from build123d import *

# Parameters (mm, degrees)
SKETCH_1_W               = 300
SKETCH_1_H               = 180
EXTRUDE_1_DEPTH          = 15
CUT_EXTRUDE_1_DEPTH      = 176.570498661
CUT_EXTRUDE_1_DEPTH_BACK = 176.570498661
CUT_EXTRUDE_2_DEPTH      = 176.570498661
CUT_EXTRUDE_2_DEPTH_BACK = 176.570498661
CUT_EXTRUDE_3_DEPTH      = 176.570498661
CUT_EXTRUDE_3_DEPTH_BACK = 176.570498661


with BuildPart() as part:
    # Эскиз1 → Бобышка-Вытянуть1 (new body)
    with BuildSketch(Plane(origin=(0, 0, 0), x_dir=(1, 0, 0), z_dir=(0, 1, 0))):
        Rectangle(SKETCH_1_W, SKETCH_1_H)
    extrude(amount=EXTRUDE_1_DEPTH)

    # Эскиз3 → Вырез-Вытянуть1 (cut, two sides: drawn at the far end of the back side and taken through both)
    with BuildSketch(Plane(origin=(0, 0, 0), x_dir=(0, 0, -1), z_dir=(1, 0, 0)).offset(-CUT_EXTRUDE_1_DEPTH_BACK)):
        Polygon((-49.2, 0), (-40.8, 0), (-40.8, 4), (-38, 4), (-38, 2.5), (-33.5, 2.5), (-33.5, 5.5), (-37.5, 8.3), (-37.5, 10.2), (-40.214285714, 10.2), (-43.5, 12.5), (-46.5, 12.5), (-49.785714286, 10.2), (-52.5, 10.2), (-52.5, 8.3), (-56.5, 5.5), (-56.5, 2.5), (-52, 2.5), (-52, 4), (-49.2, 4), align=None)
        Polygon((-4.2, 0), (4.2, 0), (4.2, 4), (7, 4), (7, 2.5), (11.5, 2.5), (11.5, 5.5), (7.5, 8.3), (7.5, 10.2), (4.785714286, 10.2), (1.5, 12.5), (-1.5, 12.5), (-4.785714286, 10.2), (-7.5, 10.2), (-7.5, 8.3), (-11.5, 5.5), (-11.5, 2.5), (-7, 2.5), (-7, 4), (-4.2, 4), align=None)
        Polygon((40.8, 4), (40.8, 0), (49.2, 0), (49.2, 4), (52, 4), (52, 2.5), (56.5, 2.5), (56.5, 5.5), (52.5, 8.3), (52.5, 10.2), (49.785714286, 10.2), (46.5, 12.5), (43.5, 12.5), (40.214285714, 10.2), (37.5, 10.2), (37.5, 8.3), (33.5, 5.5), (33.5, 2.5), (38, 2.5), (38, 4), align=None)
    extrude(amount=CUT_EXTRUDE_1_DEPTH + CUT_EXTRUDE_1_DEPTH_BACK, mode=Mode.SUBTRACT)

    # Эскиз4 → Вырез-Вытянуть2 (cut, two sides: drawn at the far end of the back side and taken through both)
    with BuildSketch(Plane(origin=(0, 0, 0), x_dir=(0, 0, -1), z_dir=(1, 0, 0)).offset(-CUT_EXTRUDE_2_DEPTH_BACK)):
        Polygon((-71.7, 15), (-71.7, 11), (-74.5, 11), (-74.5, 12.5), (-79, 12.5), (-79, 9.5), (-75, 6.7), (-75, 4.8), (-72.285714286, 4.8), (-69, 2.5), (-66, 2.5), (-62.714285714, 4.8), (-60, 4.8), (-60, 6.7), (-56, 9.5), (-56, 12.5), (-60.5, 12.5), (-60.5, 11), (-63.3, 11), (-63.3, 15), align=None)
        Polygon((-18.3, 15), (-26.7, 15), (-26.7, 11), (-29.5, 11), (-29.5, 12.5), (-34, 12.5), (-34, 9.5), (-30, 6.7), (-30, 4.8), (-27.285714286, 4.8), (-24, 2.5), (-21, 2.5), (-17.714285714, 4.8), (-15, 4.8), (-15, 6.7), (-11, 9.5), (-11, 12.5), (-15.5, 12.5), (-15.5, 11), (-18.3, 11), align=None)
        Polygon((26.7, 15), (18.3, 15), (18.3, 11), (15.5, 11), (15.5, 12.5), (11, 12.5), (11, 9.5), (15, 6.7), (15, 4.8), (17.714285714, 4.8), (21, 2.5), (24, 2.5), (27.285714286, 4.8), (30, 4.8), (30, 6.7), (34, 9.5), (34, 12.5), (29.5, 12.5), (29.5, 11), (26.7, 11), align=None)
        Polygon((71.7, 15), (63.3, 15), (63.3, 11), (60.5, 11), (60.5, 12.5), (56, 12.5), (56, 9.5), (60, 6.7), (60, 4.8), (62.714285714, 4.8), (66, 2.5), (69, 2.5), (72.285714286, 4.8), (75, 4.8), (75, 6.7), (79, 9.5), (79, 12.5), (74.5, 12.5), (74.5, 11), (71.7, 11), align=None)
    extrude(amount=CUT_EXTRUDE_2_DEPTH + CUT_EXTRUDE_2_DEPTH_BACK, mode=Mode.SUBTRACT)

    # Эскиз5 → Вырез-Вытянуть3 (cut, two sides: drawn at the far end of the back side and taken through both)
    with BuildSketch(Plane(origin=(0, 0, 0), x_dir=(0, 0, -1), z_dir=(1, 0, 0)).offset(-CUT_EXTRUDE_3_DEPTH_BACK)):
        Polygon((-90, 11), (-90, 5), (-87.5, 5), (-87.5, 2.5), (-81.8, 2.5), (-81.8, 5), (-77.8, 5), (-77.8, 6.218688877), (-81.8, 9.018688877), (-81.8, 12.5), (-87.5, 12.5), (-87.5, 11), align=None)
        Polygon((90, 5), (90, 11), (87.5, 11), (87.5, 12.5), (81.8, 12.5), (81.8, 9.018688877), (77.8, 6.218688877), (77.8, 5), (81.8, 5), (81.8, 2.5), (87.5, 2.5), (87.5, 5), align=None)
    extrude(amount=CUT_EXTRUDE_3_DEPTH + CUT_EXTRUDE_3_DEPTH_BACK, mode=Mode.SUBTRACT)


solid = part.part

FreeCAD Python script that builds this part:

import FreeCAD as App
import Part
import Sketcher

V = App.Vector
Q = App.Units.Quantity

doc = App.newDocument("Part")
body = doc.addObject("PartDesign::Body", "Body")

# Sketch on XZ plane
sketch1 = body.newObject("Sketcher::SketchObject", "Sketch")
sketch1.AttachmentSupport = (doc.getObject("XZ_Plane"), [""])
sketch1.MapMode = "FlatFace"
sketch1.addGeometry([
    Part.LineSegment(V(-150, -90, 0), V(-150, 90, 0)),
    Part.LineSegment(V(-150, 90, 0), V(150, 90, 0)),
    Part.LineSegment(V(150, 90, 0), V(150, -90, 0)),
    Part.LineSegment(V(150, -90, 0), V(-150, -90, 0)),
], False)
sketch1.addConstraint([
    Sketcher.Constraint("Coincident", 0, 2, 1, 1),
    Sketcher.Constraint("Coincident", 1, 2, 2, 1),
    Sketcher.Constraint("Coincident", 2, 2, 3, 1),
    Sketcher.Constraint("Coincident", 3, 2, 0, 1),
    Sketcher.Constraint("Vertical", 0),
    Sketcher.Constraint("Horizontal", 1),
    Sketcher.Constraint("Vertical", 2),
    Sketcher.Constraint("Horizontal", 3),
    Sketcher.Constraint("Symmetric", 0, 2, 2, 2, -1, 1),
    Sketcher.Constraint("DistanceX", 1, 1, 1, 2, Q("300 mm")),
    Sketcher.Constraint("DistanceY", 0, 1, 0, 2, Q("180 mm")),
])
pad1 = body.newObject("PartDesign::Pad", "Pad")
pad1.Profile = sketch1
pad1.Length = 15
pad1.Reversed = True

# Sketch on YZ plane
sketch2 = body.newObject("Sketcher::SketchObject", "Sketch001")
sketch2.AttachmentSupport = (doc.getObject("YZ_Plane"), [""])
sketch2.MapMode = "FlatFace"
sketch2.addGeometry([
    Part.LineSegment(V(0, 49.2, 0), V(0, 40.8, 0)),  # 0
    Part.LineSegment(V(0, 40.8, 0), V(4, 40.8, 0)),  # 1
    Part.LineSegment(V(4, 40.8, 0), V(4, 38, 0)),  # 2
    Part.LineSegment(V(4, 38, 0), V(2.5, 38, 0)),  # 3
    Part.LineSegment(V(2.5, 38, 0), V(2.5, 33.5, 0)),  # 4
    Part.LineSegment(V(2.5, 33.5, 0), V(5.5, 33.5, 0)),  # 5
    Part.LineSegment(V(5.5, 33.5, 0), V(8.3, 37.5, 0)),  # 6
    Part.LineSegment(V(8.3, 37.5, 0), V(10.2, 37.5, 0)),  # 7
    Part.LineSegment(V(10.2, 37.5, 0), V(10.2, 40.2, 0)),  # 8
    Part.LineSegment(V(10.2, 40.2, 0), V(12.5, 43.5, 0)),  # 9
    Part.LineSegment(V(12.5, 43.5, 0), V(12.5, 46.5, 0)),  # 10
    Part.LineSegment(V(12.5, 46.5, 0), V(10.2, 49.8, 0)),  # 11
    Part.LineSegment(V(10.2, 49.8, 0), V(10.2, 52.5, 0)),  # 12
    Part.LineSegment(V(10.2, 52.5, 0), V(8.3, 52.5, 0)),  # 13
    Part.LineSegment(V(8.3, 52.5, 0), V(5.5, 56.5, 0)),  # 14
    Part.LineSegment(V(5.5, 56.5, 0), V(2.5, 56.5, 0)),  # 15
    Part.LineSegment(V(2.5, 56.5, 0), V(2.5, 52, 0)),  # 16
    Part.LineSegment(V(2.5, 52, 0), V(4, 52, 0)),  # 17
    Part.LineSegment(V(4, 52, 0), V(4, 49.2, 0)),  # 18
    Part.LineSegment(V(4, 49.2, 0), V(0, 49.2, 0)),  # 19
    Part.LineSegment(V(0, 4.2, 0), V(0, -4.2, 0)),  # 20
    Part.LineSegment(V(0, -4.2, 0), V(4, -4.2, 0)),  # 21
    Part.LineSegment(V(4, -4.2, 0), V(4, -7, 0)),  # 22
    Part.LineSegment(V(4, -7, 0), V(2.5, -7, 0)),  # 23
    Part.LineSegment(V(2.5, -7, 0), V(2.5, -11.5, 0)),  # 24
    Part.LineSegment(V(2.5, -11.5, 0), V(5.5, -11.5, 0)),  # 25
    Part.LineSegment(V(5.5, -11.5, 0), V(8.3, -7.5, 0)),  # 26
    Part.LineSegment(V(8.3, -7.5, 0), V(10.2, -7.5, 0)),  # 27
    Part.LineSegment(V(10.2, -7.5, 0), V(10.2, -4.8, 0)),  # 28
    Part.LineSegment(V(10.2, -4.8, 0), V(12.5, -1.5, 0)),  # 29
    Part.LineSegment(V(12.5, -1.5, 0), V(12.5, 1.5, 0)),  # 30
    Part.LineSegment(V(12.5, 1.5, 0), V(10.2, 4.8, 0)),  # 31
    Part.LineSegment(V(10.2, 4.8, 0), V(10.2, 7.5, 0)),  # 32
    Part.LineSegment(V(10.2, 7.5, 0), V(8.3, 7.5, 0)),  # 33
    Part.LineSegment(V(8.3, 7.5, 0), V(5.5, 11.5, 0)),  # 34
    Part.LineSegment(V(5.5, 11.5, 0), V(2.5, 11.5, 0)),  # 35
    Part.LineSegment(V(2.5, 11.5, 0), V(2.5, 7, 0)),  # 36
    Part.LineSegment(V(2.5, 7, 0), V(4, 7, 0)),  # 37
    Part.LineSegment(V(4, 7, 0), V(4, 4.2, 0)),  # 38
    Part.LineSegment(V(4, 4.2, 0), V(0, 4.2, 0)),  # 39
    Part.LineSegment(V(4, -40.8, 0), V(0, -40.8, 0)),  # 40
    Part.LineSegment(V(0, -40.8, 0), V(0, -49.2, 0)),  # 41
    Part.LineSegment(V(0, -49.2, 0), V(4, -49.2, 0)),  # 42
    Part.LineSegment(V(4, -49.2, 0), V(4, -52, 0)),  # 43
    Part.LineSegment(V(4, -52, 0), V(2.5, -52, 0)),  # 44
    Part.LineSegment(V(2.5, -52, 0), V(2.5, -56.5, 0)),  # 45
    Part.LineSegment(V(2.5, -56.5, 0), V(5.5, -56.5, 0)),  # 46
    Part.LineSegment(V(5.5, -56.5, 0), V(8.3, -52.5, 0)),  # 47
    Part.LineSegment(V(8.3, -52.5, 0), V(10.2, -52.5, 0)),  # 48
    Part.LineSegment(V(10.2, -52.5, 0), V(10.2, -49.8, 0)),  # 49
    Part.LineSegment(V(10.2, -49.8, 0), V(12.5, -46.5, 0)),  # 50
    Part.LineSegment(V(12.5, -46.5, 0), V(12.5, -43.5, 0)),  # 51
    Part.LineSegment(V(12.5, -43.5, 0), V(10.2, -40.2, 0)),  # 52
    Part.LineSegment(V(10.2, -40.2, 0), V(10.2, -37.5, 0)),  # 53
    Part.LineSegment(V(10.2, -37.5, 0), V(8.3, -37.5, 0)),  # 54
    Part.LineSegment(V(8.3, -37.5, 0), V(5.5, -33.5, 0)),  # 55
    Part.LineSegment(V(5.5, -33.5, 0), V(2.5, -33.5, 0)),  # 56
    Part.LineSegment(V(2.5, -33.5, 0), V(2.5, -38, 0)),  # 57
    Part.LineSegment(V(2.5, -38, 0), V(4, -38, 0)),  # 58
    Part.LineSegment(V(4, -38, 0), V(4, -40.8, 0)),  # 59
], False)
sketch2.addConstraint([
    Sketcher.Constraint("Coincident", 0, 2, 1, 1),
    Sketcher.Constraint("Coincident", 1, 2, 2, 1),
    Sketcher.Constraint("Coincident", 2, 2, 3, 1),
    Sketcher.Constraint("Coincident", 3, 2, 4, 1),
    Sketcher.Constraint("Coincident", 4, 2, 5, 1),
    Sketcher.Constraint("Coincident", 5, 2, 6, 1),
    Sketcher.Constraint("Coincident", 6, 2, 7, 1),
    Sketcher.Constraint("Coincident", 7, 2, 8, 1),
    Sketcher.Constraint("Coincident", 8, 2, 9, 1),
    Sketcher.Constraint("Coincident", 9, 2, 10, 1),
    Sketcher.Constraint("Coincident", 10, 2, 11, 1),
    Sketcher.Constraint("Coincident", 11, 2, 12, 1),
    Sketcher.Constraint("Coincident", 12, 2, 13, 1),
    Sketcher.Constraint("Coincident", 13, 2, 14, 1),
    Sketcher.Constraint("Coincident", 14, 2, 15, 1),
    Sketcher.Constraint("Coincident", 15, 2, 16, 1),
    Sketcher.Constraint("Coincident", 16, 2, 17, 1),
    Sketcher.Constraint("Coincident", 17, 2, 18, 1),
    Sketcher.Constraint("Coincident", 18, 2, 19, 1),
    Sketcher.Constraint("Coincident", 19, 2, 0, 1),
    Sketcher.Constraint("Coincident", 20, 2, 21, 1),
    Sketcher.Constraint("Coincident", 21, 2, 22, 1),
    Sketcher.Constraint("Coincident", 22, 2, 23, 1),
    Sketcher.Constraint("Coincident", 23, 2, 24, 1),
    Sketcher.Constraint("Coincident", 24, 2, 25, 1),
    Sketcher.Constraint("Coincident", 25, 2, 26, 1),
    Sketcher.Constraint("Coincident", 26, 2, 27, 1),
    Sketcher.Constraint("Coincident", 27, 2, 28, 1),
    Sketcher.Constraint("Coincident", 28, 2, 29, 1),
    Sketcher.Constraint("Coincident", 29, 2, 30, 1),
    Sketcher.Constraint("Coincident", 30, 2, 31, 1),
    Sketcher.Constraint("Coincident", 31, 2, 32, 1),
    Sketcher.Constraint("Coincident", 32, 2, 33, 1),
    Sketcher.Constraint("Coincident", 33, 2, 34, 1),
    Sketcher.Constraint("Coincident", 34, 2, 35, 1),
    Sketcher.Constraint("Coincident", 35, 2, 36, 1),
    Sketcher.Constraint("Coincident", 36, 2, 37, 1),
    Sketcher.Constraint("Coincident", 37, 2, 38, 1),
    Sketcher.Constraint("Coincident", 38, 2, 39, 1),
    Sketcher.Constraint("Coincident", 39, 2, 20, 1),
    Sketcher.Constraint("Coincident", 40, 2, 41, 1),
    Sketcher.Constraint("Coincident", 41, 2, 42, 1),
    Sketcher.Constraint("Coincident", 42, 2, 43, 1),
    Sketcher.Constraint("Coincident", 43, 2, 44, 1),
    Sketcher.Constraint("Coincident", 44, 2, 45, 1),
    Sketcher.Constraint("Coincident", 45, 2, 46, 1),
    Sketcher.Constraint("Coincident", 46, 2, 47, 1),
    Sketcher.Constraint("Coincident", 47, 2, 48, 1),
    Sketcher.Constraint("Coincident", 48, 2, 49, 1),
    Sketcher.Constraint("Coincident", 49, 2, 50, 1),
    Sketcher.Constraint("Coincident", 50, 2, 51, 1),
    Sketcher.Constraint("Coincident", 51, 2, 52, 1),
    Sketcher.Constraint("Coincident", 52, 2, 53, 1),
    Sketcher.Constraint("Coincident", 53, 2, 54, 1),
    Sketcher.Constraint("Coincident", 54, 2, 55, 1),
    Sketcher.Constraint("Coincident", 55, 2, 56, 1),
    Sketcher.Constraint("Coincident", 56, 2, 57, 1),
    Sketcher.Constraint("Coincident", 57, 2, 58, 1),
    Sketcher.Constraint("Coincident", 58, 2, 59, 1),
    Sketcher.Constraint("Coincident", 59, 2, 40, 1),
    Sketcher.Constraint("Vertical", 0),
    Sketcher.Constraint("Horizontal", 1),
    Sketcher.Constraint("Vertical", 2),
    Sketcher.Constraint("Horizontal", 3),
    Sketcher.Constraint("Vertical", 4),
    Sketcher.Constraint("Horizontal", 5),
    Sketcher.Constraint("Horizontal", 7),
    Sketcher.Constraint("Vertical", 8),
    Sketcher.Constraint("Vertical", 10),
    Sketcher.Constraint("Vertical", 12),
    Sketcher.Constraint("Horizontal", 13),
    Sketcher.Constraint("Horizontal", 15),
    Sketcher.Constraint("Vertical", 16),
    Sketcher.Constraint("Horizontal", 17),
    Sketcher.Constraint("Vertical", 18),
    Sketcher.Constraint("Horizontal", 19),
    Sketcher.Constraint("Vertical", 20),
    Sketcher.Constraint("Horizontal", 21),
    Sketcher.Constraint("Vertical", 22),
    Sketcher.Constraint("Horizontal", 23),
    Sketcher.Constraint("Vertical", 24),
    Sketcher.Constraint("Horizontal", 25),
    Sketcher.Constraint("Horizontal", 27),
    Sketcher.Constraint("Vertical", 28),
    Sketcher.Constraint("Vertical", 30),
    Sketcher.Constraint("Vertical", 32),
    Sketcher.Constraint("Horizontal", 33),
    Sketcher.Constraint("Horizontal", 35),
    Sketcher.Constraint("Vertical", 36),
    Sketcher.Constraint("Horizontal", 37),
    Sketcher.Constraint("Vertical", 38),
    Sketcher.Constraint("Horizontal", 39),
    Sketcher.Constraint("Horizontal", 40),
    Sketcher.Constraint("Vertical", 41),
    Sketcher.Constraint("Horizontal", 42),
    Sketcher.Constraint("Vertical", 43),
    Sketcher.Constraint("Horizontal", 44),
    Sketcher.Constraint("Vertical", 45),
    Sketcher.Constraint("Horizontal", 46),
    Sketcher.Constraint("Horizontal", 48),
    Sketcher.Constraint("Vertical", 49),
    Sketcher.Constraint("Vertical", 51),
    Sketcher.Constraint("Vertical", 53),
    Sketcher.Constraint("Horizontal", 54),
    Sketcher.Constraint("Horizontal", 56),
    Sketcher.Constraint("Vertical", 57),
    Sketcher.Constraint("Horizontal", 58),
    Sketcher.Constraint("Vertical", 59),
    Sketcher.Constraint("Symmetric", 20, 2, 39, 2, -1, 1),
    Sketcher.Constraint("Symmetric", 0, 2, 40, 2, -1, 1),
    Sketcher.Constraint("Symmetric", 28, 2, 31, 2, -1),
    Sketcher.Constraint("Symmetric", 26, 2, 33, 2, -1),
    Sketcher.Constraint("Symmetric", 25, 2, 34, 2, -1),
    Sketcher.Constraint("Symmetric", 23, 2, 36, 2, -1),
    Sketcher.Constraint("Symmetric", 19, 2, 41, 2, -1),
    Sketcher.Constraint("Symmetric", 17, 2, 43, 2, -1),
    Sketcher.Constraint("Symmetric", 15, 2, 45, 2, -1),
    Sketcher.Constraint("Symmetric", 13, 2, 47, 2, -1),
    Sketcher.Constraint("Symmetric", 11, 2, 49, 2, -1),
    Sketcher.Constraint("Symmetric", 10, 2, 50, 2, -1),
    Sketcher.Constraint("Symmetric", 8, 2, 52, 2, -1),
    Sketcher.Constraint("Symmetric", 6, 2, 54, 2, -1),
    Sketcher.Constraint("Symmetric", 5, 2, 55, 2, -1),
    Sketcher.Constraint("Symmetric", 3, 2, 57, 2, -1),
    Sketcher.Constraint("Parallel", 6, 9),
    Sketcher.Constraint("Parallel", 11, 14),
    Sketcher.Constraint("Parallel", 9, 26),
    Sketcher.Constraint("Parallel", 26, 29),
    Sketcher.Constraint("Parallel", 14, 31),
    Sketcher.Constraint("Parallel", 31, 34),
    Sketcher.Constraint("Parallel", 29, 47),
    Sketcher.Constraint("Parallel", 34, 52),
    Sketcher.Constraint("Vertical", 8, 2, 11, 2),
    Sketcher.Constraint("Vertical", 6, 2, 13, 2),
    Sketcher.Constraint("Vertical", 5, 2, 14, 2),
    Sketcher.Constraint("Vertical", 4, 2, 15, 2),
    Sketcher.Constraint("Vertical", 2, 2, 17, 2),
    Sketcher.Constraint("Vertical", 18, 2, 21, 2),
    Sketcher.Constraint("Vertical", 16, 2, 23, 2),
    Sketcher.Constraint("Vertical", 14, 2, 25, 2),
    Sketcher.Constraint("Vertical", 13, 2, 26, 2),
    Sketcher.Constraint("Vertical", 12, 2, 27, 2),
    Sketcher.Constraint("Vertical", 10, 2, 29, 2),
    Sketcher.Constraint("Vertical", 22, 2, 37, 2),
    Sketcher.Constraint("Vertical", 43, 2, 58, 2),
    Sketcher.Constraint("Equal", 56, 10),
    Sketcher.Constraint("Equal", 8, 12),
    Sketcher.Constraint("Equal", 4, 16),
    Sketcher.Constraint("Equal", 2, 18),
    Sketcher.Constraint("Equal", 0, 20),
    Sketcher.Constraint("Equal", 18, 22),
    Sketcher.Constraint("Equal", 16, 24),
    Sketcher.Constraint("Equal", 12, 28),
    Sketcher.Constraint("DistanceX", 1, 1, 1, 2, Q("4 mm")),
    Sketcher.Constraint("DistanceX", 5, 1, 5, 2, Q("3 mm")),
    Sketcher.Constraint("DistanceX", 3, 2, 3, 1, Q("1.5 mm")),
    Sketcher.Constraint("DistanceX", 7, 1, 7, 2, Q("1.9 mm")),
    Sketcher.Constraint("DistanceY", 0, 2, 0, 1, Q("8.4 mm")),
    Sketcher.Constraint("DistanceY", 2, 2, 2, 1, Q("2.8 mm")),
    Sketcher.Constraint("DistanceY", 4, 2, 4, 1, Q("4.5 mm")),
    Sketcher.Constraint("DistanceY", -1, 1, 2, 2, Q("38 mm")),
    Sketcher.Constraint("DistanceY", 5, 2, 6, 2, Q("4 mm")),
    Sketcher.Constraint("DistanceX", 14, 2, 10, 2, Q("7 mm")),
    Sketcher.Constraint("DistanceX", -1, 1, 6, 2, Q("8.3 mm")),
])
pocket1 = body.newObject("PartDesign::Pocket", "Pocket")
pocket1.Profile = sketch2
pocket1.Type = "ThroughAll"
pocket1.Midplane = True

# Sketch on YZ plane
sketch3 = body.newObject("Sketcher::SketchObject", "Sketch002")
sketch3.AttachmentSupport = (doc.getObject("YZ_Plane"), [""])
sketch3.MapMode = "FlatFace"
sketch3.addGeometry([
    Part.LineSegment(V(15, 71.7, 0), V(11, 71.7, 0)),  # 0
    Part.LineSegment(V(11, 71.7, 0), V(11, 74.5, 0)),  # 1
    Part.LineSegment(V(11, 74.5, 0), V(12.5, 74.5, 0)),  # 2
    Part.LineSegment(V(12.5, 74.5, 0), V(12.5, 79, 0)),  # 3
    Part.LineSegment(V(12.5, 79, 0), V(9.5, 79, 0)),  # 4
    Part.LineSegment(V(9.5, 79, 0), V(6.7, 75, 0)),  # 5
    Part.LineSegment(V(6.7, 75, 0), V(4.8, 75, 0)),  # 6
    Part.LineSegment(V(4.8, 75, 0), V(4.8, 72.3, 0)),  # 7
    Part.LineSegment(V(4.8, 72.3, 0), V(2.5, 69, 0)),  # 8
    Part.LineSegment(V(2.5, 69, 0), V(2.5, 66, 0)),  # 9
    Part.LineSegment(V(2.5, 66, 0), V(4.8, 62.7, 0)),  # 10
    Part.LineSegment(V(4.8, 62.7, 0), V(4.8, 60, 0)),  # 11
    Part.LineSegment(V(4.8, 60, 0), V(6.7, 60, 0)),  # 12
    Part.LineSegment(V(6.7, 60, 0), V(9.5, 56, 0)),  # 13
    Part.LineSegment(V(9.5, 56, 0), V(12.5, 56, 0)),  # 14
    Part.LineSegment(V(12.5, 56, 0), V(12.5, 60.5, 0)),  # 15
    Part.LineSegment(V(12.5, 60.5, 0), V(11, 60.5, 0)),  # 16
    Part.LineSegment(V(11, 60.5, 0), V(11, 63.3, 0)),  # 17
    Part.LineSegment(V(11, 63.3, 0), V(15, 63.3, 0)),  # 18
    Part.LineSegment(V(15, 63.3, 0), V(15, 71.7, 0)),  # 19
    Part.LineSegment(V(15, 18.3, 0), V(15, 26.7, 0)),  # 20
    Part.LineSegment(V(15, 26.7, 0), V(11, 26.7, 0)),  # 21
    Part.LineSegment(V(11, 26.7, 0), V(11, 29.5, 0)),  # 22
    Part.LineSegment(V(11, 29.5, 0), V(12.5, 29.5, 0)),  # 23
    Part.LineSegment(V(12.5, 29.5, 0), V(12.5, 34, 0)),  # 24
    Part.LineSegment(V(12.5, 34, 0), V(9.5, 34, 0)),  # 25
    Part.LineSegment(V(9.5, 34, 0), V(6.7, 30, 0)),  # 26
    Part.LineSegment(V(6.7, 30, 0), V(4.8, 30, 0)),  # 27
    Part.LineSegment(V(4.8, 30, 0), V(4.8, 27.3, 0)),  # 28
    Part.LineSegment(V(4.8, 27.3, 0), V(2.5, 24, 0)),  # 29
    Part.LineSegment(V(2.5, 24, 0), V(2.5, 21, 0)),  # 30
    Part.LineSegment(V(2.5, 21, 0), V(4.8, 17.7, 0)),  # 31
    Part.LineSegment(V(4.8, 17.7, 0), V(4.8, 15, 0)),  # 32
    Part.LineSegment(V(4.8, 15, 0), V(6.7, 15, 0)),  # 33
    Part.LineSegment(V(6.7, 15, 0), V(9.5, 11, 0)),  # 34
    Part.LineSegment(V(9.5, 11, 0), V(12.5, 11, 0)),  # 35
    Part.LineSegment(V(12.5, 11, 0), V(12.5, 15.5, 0)),  # 36
    Part.LineSegment(V(12.5, 15.5, 0), V(11, 15.5, 0)),  # 37
    Part.LineSegment(V(11, 15.5, 0), V(11, 18.3, 0)),  # 38
    Part.LineSegment(V(11, 18.3, 0), V(15, 18.3, 0)),  # 39
    Part.LineSegment(V(15, -26.7, 0), V(15, -18.3, 0)),  # 40
    Part.LineSegment(V(15, -18.3, 0), V(11, -18.3, 0)),  # 41
    Part.LineSegment(V(11, -18.3, 0), V(11, -15.5, 0)),  # 42
    Part.LineSegment(V(11, -15.5, 0), V(12.5, -15.5, 0)),  # 43
    Part.LineSegment(V(12.5, -15.5, 0), V(12.5, -11, 0)),  # 44
    Part.LineSegment(V(12.5, -11, 0), V(9.5, -11, 0)),  # 45
    Part.LineSegment(V(9.5, -11, 0), V(6.7, -15, 0)),  # 46
    Part.LineSegment(V(6.7, -15, 0), V(4.8, -15, 0)),  # 47
    Part.LineSegment(V(4.8, -15, 0), V(4.8, -17.7, 0)),  # 48
    Part.LineSegment(V(4.8, -17.7, 0), V(2.5, -21, 0)),  # 49
    Part.LineSegment(V(2.5, -21, 0), V(2.5, -24, 0)),  # 50
    Part.LineSegment(V(2.5, -24, 0), V(4.8, -27.3, 0)),  # 51
    Part.LineSegment(V(4.8, -27.3, 0), V(4.8, -30, 0)),  # 52
    Part.LineSegment(V(4.8, -30, 0), V(6.7, -30, 0)),  # 53
    Part.LineSegment(V(6.7, -30, 0), V(9.5, -34, 0)),  # 54
    Part.LineSegment(V(9.5, -34, 0), V(12.5, -34, 0)),  # 55
    Part.LineSegment(V(12.5, -34, 0), V(12.5, -29.5, 0)),  # 56
    Part.LineSegment(V(12.5, -29.5, 0), V(11, -29.5, 0)),  # 57
    Part.LineSegment(V(11, -29.5, 0), V(11, -26.7, 0)),  # 58
    Part.LineSegment(V(11, -26.7, 0), V(15, -26.7, 0)),  # 59
    Part.LineSegment(V(15, -71.7, 0), V(15, -63.3, 0)),  # 60
    Part.LineSegment(V(15, -63.3, 0), V(11, -63.3, 0)),  # 61
    Part.LineSegment(V(11, -63.3, 0), V(11, -60.5, 0)),  # 62
    Part.LineSegment(V(11, -60.5, 0), V(12.5, -60.5, 0)),  # 63
    Part.LineSegment(V(12.5, -60.5, 0), V(12.5, -56, 0)),  # 64
    Part.LineSegment(V(12.5, -56, 0), V(9.5, -56, 0)),  # 65
    Part.LineSegment(V(9.5, -56, 0), V(6.7, -60, 0)),  # 66
    Part.LineSegment(V(6.7, -60, 0), V(4.8, -60, 0)),  # 67
    Part.LineSegment(V(4.8, -60, 0), V(4.8, -62.7, 0)),  # 68
    Part.LineSegment(V(4.8, -62.7, 0), V(2.5, -66, 0)),  # 69
    Part.LineSegment(V(2.5, -66, 0), V(2.5, -69, 0)),  # 70
    Part.LineSegment(V(2.5, -69, 0), V(4.8, -72.3, 0)),  # 71
    Part.LineSegment(V(4.8, -72.3, 0), V(4.8, -75, 0)),  # 72
    Part.LineSegment(V(4.8, -75, 0), V(6.7, -75, 0)),  # 73
    Part.LineSegment(V(6.7, -75, 0), V(9.5, -79, 0)),  # 74
    Part.LineSegment(V(9.5, -79, 0), V(12.5, -79, 0)),  # 75
    Part.LineSegment(V(12.5, -79, 0), V(12.5, -74.5, 0)),  # 76
    Part.LineSegment(V(12.5, -74.5, 0), V(11, -74.5, 0)),  # 77
    Part.LineSegment(V(11, -74.5, 0), V(11, -71.7, 0)),  # 78
    Part.LineSegment(V(11, -71.7, 0), V(15, -71.7, 0)),  # 79
], False)
sketch3.addConstraint([
    Sketcher.Constraint("Coincident", 0, 2, 1, 1),
    Sketcher.Constraint("Coincident", 1, 2, 2, 1),
    Sketcher.Constraint("Coincident", 2, 2, 3, 1),
    Sketcher.Constraint("Coincident", 3, 2, 4, 1),
    Sketcher.Constraint("Coincident", 4, 2, 5, 1),
    Sketcher.Constraint("Coincident", 5, 2, 6, 1),
    Sketcher.Constraint("Coincident", 6, 2, 7, 1),
    Sketcher.Constraint("Coincident", 7, 2, 8, 1),
    Sketcher.Constraint("Coincident", 8, 2, 9, 1),
    Sketcher.Constraint("Coincident", 9, 2, 10, 1),
    Sketcher.Constraint("Coincident", 10, 2, 11, 1),
    Sketcher.Constraint("Coincident", 11, 2, 12, 1),
    Sketcher.Constraint("Coincident", 12, 2, 13, 1),
    Sketcher.Constraint("Coincident", 13, 2, 14, 1),
    Sketcher.Constraint("Coincident", 14, 2, 15, 1),
    Sketcher.Constraint("Coincident", 15, 2, 16, 1),
    Sketcher.Constraint("Coincident", 16, 2, 17, 1),
    Sketcher.Constraint("Coincident", 17, 2, 18, 1),
    Sketcher.Constraint("Coincident", 18, 2, 19, 1),
    Sketcher.Constraint("Coincident", 19, 2, 0, 1),
    Sketcher.Constraint("Coincident", 20, 2, 21, 1),
    Sketcher.Constraint("Coincident", 21, 2, 22, 1),
    Sketcher.Constraint("Coincident", 22, 2, 23, 1),
    Sketcher.Constraint("Coincident", 23, 2, 24, 1),
    Sketcher.Constraint("Coincident", 24, 2, 25, 1),
    Sketcher.Constraint("Coincident", 25, 2, 26, 1),
    Sketcher.Constraint("Coincident", 26, 2, 27, 1),
    Sketcher.Constraint("Coincident", 27, 2, 28, 1),
    Sketcher.Constraint("Coincident", 28, 2, 29, 1),
    Sketcher.Constraint("Coincident", 29, 2, 30, 1),
    Sketcher.Constraint("Coincident", 30, 2, 31, 1),
    Sketcher.Constraint("Coincident", 31, 2, 32, 1),
    Sketcher.Constraint("Coincident", 32, 2, 33, 1),
    Sketcher.Constraint("Coincident", 33, 2, 34, 1),
    Sketcher.Constraint("Coincident", 34, 2, 35, 1),
    Sketcher.Constraint("Coincident", 35, 2, 36, 1),
    Sketcher.Constraint("Coincident", 36, 2, 37, 1),
    Sketcher.Constraint("Coincident", 37, 2, 38, 1),
    Sketcher.Constraint("Coincident", 38, 2, 39, 1),
    Sketcher.Constraint("Coincident", 39, 2, 20, 1),
    Sketcher.Constraint("Coincident", 40, 2, 41, 1),
    Sketcher.Constraint("Coincident", 41, 2, 42, 1),
    Sketcher.Constraint("Coincident", 42, 2, 43, 1),
    Sketcher.Constraint("Coincident", 43, 2, 44, 1),
    Sketcher.Constraint("Coincident", 44, 2, 45, 1),
    Sketcher.Constraint("Coincident", 45, 2, 46, 1),
    Sketcher.Constraint("Coincident", 46, 2, 47, 1),
    Sketcher.Constraint("Coincident", 47, 2, 48, 1),
    Sketcher.Constraint("Coincident", 48, 2, 49, 1),
    Sketcher.Constraint("Coincident", 49, 2, 50, 1),
    Sketcher.Constraint("Coincident", 50, 2, 51, 1),
    Sketcher.Constraint("Coincident", 51, 2, 52, 1),
    Sketcher.Constraint("Coincident", 52, 2, 53, 1),
    Sketcher.Constraint("Coincident", 53, 2, 54, 1),
    Sketcher.Constraint("Coincident", 54, 2, 55, 1),
    Sketcher.Constraint("Coincident", 55, 2, 56, 1),
    Sketcher.Constraint("Coincident", 56, 2, 57, 1),
    Sketcher.Constraint("Coincident", 57, 2, 58, 1),
    Sketcher.Constraint("Coincident", 58, 2, 59, 1),
    Sketcher.Constraint("Coincident", 59, 2, 40, 1),
    Sketcher.Constraint("Coincident", 60, 2, 61, 1),
    Sketcher.Constraint("Coincident", 61, 2, 62, 1),
    Sketcher.Constraint("Coincident", 62, 2, 63, 1),
    Sketcher.Constraint("Coincident", 63, 2, 64, 1),
    Sketcher.Constraint("Coincident", 64, 2, 65, 1),
    Sketcher.Constraint("Coincident", 65, 2, 66, 1),
    Sketcher.Constraint("Coincident", 66, 2, 67, 1),
    Sketcher.Constraint("Coincident", 67, 2, 68, 1),
    Sketcher.Constraint("Coincident", 68, 2, 69, 1),
    Sketcher.Constraint("Coincident", 69, 2, 70, 1),
    Sketcher.Constraint("Coincident", 70, 2, 71, 1),
    Sketcher.Constraint("Coincident", 71, 2, 72, 1),
    Sketcher.Constraint("Coincident", 72, 2, 73, 1),
    Sketcher.Constraint("Coincident", 73, 2, 74, 1),
    Sketcher.Constraint("Coincident", 74, 2, 75, 1),
    Sketcher.Constraint("Coincident", 75, 2, 76, 1),
    Sketcher.Constraint("Coincident", 76, 2, 77, 1),
    Sketcher.Constraint("Coincident", 77, 2, 78, 1),
    Sketcher.Constraint("Coincident", 78, 2, 79, 1),
    Sketcher.Constraint("Coincident", 79, 2, 60, 1),
    Sketcher.Constraint("Horizontal", 0),
    Sketcher.Constraint("Vertical", 1),
    Sketcher.Constraint("Horizontal", 2),
    Sketcher.Constraint("Vertical", 3),
    Sketcher.Constraint("Horizontal", 4),
    Sketcher.Constraint("Horizontal", 6),
    Sketcher.Constraint("Vertical", 7),
    Sketcher.Constraint("Vertical", 9),
    Sketcher.Constraint("Vertical", 11),
    Sketcher.Constraint("Horizontal", 12),
    Sketcher.Constraint("Horizontal", 14),
    Sketcher.Constraint("Vertical", 15),
    Sketcher.Constraint("Horizontal", 16),
    Sketcher.Constraint("Vertical", 17),
    Sketcher.Constraint("Horizontal", 18),
    Sketcher.Constraint("Vertical", 19),
    Sketcher.Constraint("Vertical", 20),
    Sketcher.Constraint("Horizontal", 21),
    Sketcher.Constraint("Vertical", 22),
    Sketcher.Constraint("Horizontal", 23),
    Sketcher.Constraint("Vertical", 24),
    Sketcher.Constraint("Horizontal", 25),
    Sketcher.Constraint("Horizontal", 27),
    Sketcher.Constraint("Vertical", 28),
    Sketcher.Constraint("Vertical", 30),
    Sketcher.Constraint("Vertical", 32),
    Sketcher.Constraint("Horizontal", 33),
    Sketcher.Constraint("Horizontal", 35),
    Sketcher.Constraint("Vertical", 36),
    Sketcher.Constraint("Horizontal", 37),
    Sketcher.Constraint("Vertical", 38),
    Sketcher.Constraint("Horizontal", 39),
    Sketcher.Constraint("Vertical", 40),
    Sketcher.Constraint("Horizontal", 41),
    Sketcher.Constraint("Vertical", 42),
    Sketcher.Constraint("Horizontal", 43),
    Sketcher.Constraint("Vertical", 44),
    Sketcher.Constraint("Horizontal", 45),
    Sketcher.Constraint("Horizontal", 47),
    Sketcher.Constraint("Vertical", 48),
    Sketcher.Constraint("Vertical", 50),
    Sketcher.Constraint("Vertical", 52),
    Sketcher.Constraint("Horizontal", 53),
    Sketcher.Constraint("Horizontal", 55),
    Sketcher.Constraint("Vertical", 56),
    Sketcher.Constraint("Horizontal", 57),
    Sketcher.Constraint("Vertical", 58),
    Sketcher.Constraint("Horizontal", 59),
    Sketcher.Constraint("Vertical", 60),
    Sketcher.Constraint("Horizontal", 61),
    Sketcher.Constraint("Vertical", 62),
    Sketcher.Constraint("Horizontal", 63),
    Sketcher.Constraint("Vertical", 64),
    Sketcher.Constraint("Horizontal", 65),
    Sketcher.Constraint("Horizontal", 67),
    Sketcher.Constraint("Vertical", 68),
    Sketcher.Constraint("Vertical", 70),
    Sketcher.Constraint("Vertical", 72),
    Sketcher.Constraint("Horizontal", 73),
    Sketcher.Constraint("Horizontal", 75),
    Sketcher.Constraint("Vertical", 76),
    Sketcher.Constraint("Horizontal", 77),
    Sketcher.Constraint("Vertical", 78),
    Sketcher.Constraint("Horizontal", 79),
    Sketcher.Constraint("Symmetric", 39, 2, 40, 2, -1),
    Sketcher.Constraint("Symmetric", 37, 2, 42, 2, -1),
    Sketcher.Constraint("Symmetric", 35, 2, 44, 2, -1),
    Sketcher.Constraint("Symmetric", 33, 2, 46, 2, -1),
    Sketcher.Constraint("Symmetric", 31, 2, 48, 2, -1),
    Sketcher.Constraint("Symmetric", 30, 2, 49, 2, -1),
    Sketcher.Constraint("Symmetric", 28, 2, 51, 2, -1),
    Sketcher.Constraint("Symmetric", 26, 2, 53, 2, -1),
    Sketcher.Constraint("Symmetric", 25, 2, 54, 2, -1),
    Sketcher.Constraint("Symmetric", 23, 2, 56, 2, -1),
    Sketcher.Constraint("Symmetric", 21, 2, 58, 2, -1),
    Sketcher.Constraint("Symmetric", 18, 2, 60, 2, -1),
    Sketcher.Constraint("Symmetric", 16, 2, 62, 2, -1),
    Sketcher.Constraint("Symmetric", 14, 2, 64, 2, -1),
    Sketcher.Constraint("Symmetric", 12, 2, 66, 2, -1),
    Sketcher.Constraint("Symmetric", 10, 2, 68, 2, -1),
    Sketcher.Constraint("Symmetric", 9, 2, 69, 2, -1),
    Sketcher.Constraint("Symmetric", 7, 2, 71, 2, -1),
    Sketcher.Constraint("Symmetric", 5, 2, 73, 2, -1),
    Sketcher.Constraint("Symmetric", 4, 2, 74, 2, -1),
    Sketcher.Constraint("Symmetric", 2, 2, 76, 2, -1),
    Sketcher.Constraint("Symmetric", 0, 2, 78, 2, -1),
    Sketcher.Constraint("Parallel", 5, 8),
    Sketcher.Constraint("Parallel", 10, 13),
    Sketcher.Constraint("Parallel", 8, 26),
    Sketcher.Constraint("Parallel", 26, 29),
    Sketcher.Constraint("Parallel", 13, 31),
    Sketcher.Constraint("Parallel", 31, 34),
    Sketcher.Constraint("Parallel", 29, 46),
    Sketcher.Constraint("Parallel", 46, 49),
    Sketcher.Constraint("Parallel", 34, 51),
    Sketcher.Constraint("Parallel", 49, 66),
    Sketcher.Constraint("Parallel", 54, 71),
    Sketcher.Constraint("Vertical", 7, 2, 10, 2),
    Sketcher.Constraint("Vertical", 5, 2, 12, 2),
    Sketcher.Constraint("Vertical", 4, 2, 13, 2),
    Sketcher.Constraint("Vertical", 3, 2, 14, 2),
    Sketcher.Constraint("Vertical", 1, 2, 16, 2),
    Sketcher.Constraint("Vertical", 19, 2, 20, 2),
    Sketcher.Constraint("Vertical", 17, 2, 21, 2),
    Sketcher.Constraint("Vertical", 15, 2, 23, 2),
    Sketcher.Constraint("Vertical", 13, 2, 25, 2),
    Sketcher.Constraint("Vertical", 12, 2, 26, 2),
    Sketcher.Constraint("Vertical", 11, 2, 27, 2),
    Sketcher.Constraint("Vertical", 9, 2, 29, 2),
    Sketcher.Constraint("Vertical", 28, 2, 31, 2),
    Sketcher.Constraint("Vertical", 26, 2, 33, 2),
    Sketcher.Constraint("Vertical", 25, 2, 34, 2),
    Sketcher.Constraint("Vertical", 24, 2, 35, 2),
    Sketcher.Constraint("Vertical", 22, 2, 37, 2),
    Sketcher.Constraint("Equal", 75, 9),
    Sketcher.Constraint("Equal", 7, 11),
    Sketcher.Constraint("Equal", 3, 15),
    Sketcher.Constraint("Equal", 1, 17),
    Sketcher.Constraint("Equal", 19, 20),
    Sketcher.Constraint("Equal", 17, 22),
    Sketcher.Constraint("Equal", 15, 24),
    Sketcher.Constraint("Equal", 11, 28),
    Sketcher.Constraint("Equal", 9, 30),
    Sketcher.Constraint("Equal", 28, 32),
    Sketcher.Constraint("Equal", 24, 36),
    Sketcher.Constraint("DistanceX", 0, 2, 0, 1, Q("4 mm")),
    Sketcher.Constraint("DistanceX", 4, 2, 4, 1, Q("3 mm")),
    Sketcher.Constraint("DistanceX", 2, 1, 2, 2, Q("1.5 mm")),
    Sketcher.Constraint("DistanceX", 6, 2, 6, 1, Q("1.9 mm")),
    Sketcher.Constraint("DistanceY", 1, 1, 1, 2, Q("2.8 mm")),
    Sketcher.Constraint("DistanceY", 3, 1, 3, 2, Q("4.5 mm")),
    Sketcher.Constraint("DistanceY", 19, 1, 19, 2, Q("8.4 mm")),
    Sketcher.Constraint("DistanceX", -1, 1, 0, 2, Q("11 mm")),
    Sketcher.Constraint("DistanceY", -1, 1, 3, 2, Q("79 mm")),
    Sketcher.Constraint("DistanceY", -1, 1, 5, 2, Q("75 mm")),
    Sketcher.Constraint("DistanceY", -1, 1, 24, 2, Q("34 mm")),
    Sketcher.Constraint("DistanceX", -1, 1, 5, 2, Q("6.7 mm")),
    Sketcher.Constraint("DistanceX", -1, 1, 8, 2, Q("2.5 mm")),
])
pocket2 = body.newObject("PartDesign::Pocket", "Pocket001")
pocket2.Profile = sketch3
pocket2.Type = "ThroughAll"
pocket2.Midplane = True

# Sketch on YZ plane
sketch4 = body.newObject("Sketcher::SketchObject", "Sketch003")
sketch4.AttachmentSupport = (doc.getObject("YZ_Plane"), [""])
sketch4.MapMode = "FlatFace"
sketch4.addGeometry([
    Part.LineSegment(V(11, 90, 0), V(5, 90, 0)),  # 0
    Part.LineSegment(V(5, 90, 0), V(5, 87.5, 0)),  # 1
    Part.LineSegment(V(5, 87.5, 0), V(2.5, 87.5, 0)),  # 2
    Part.LineSegment(V(2.5, 87.5, 0), V(2.5, 81.8, 0)),  # 3
    Part.LineSegment(V(2.5, 81.8, 0), V(5, 81.8, 0)),  # 4
    Part.LineSegment(V(5, 81.8, 0), V(5, 77.8, 0)),  # 5
    Part.LineSegment(V(5, 77.8, 0), V(6.2, 77.8, 0)),  # 6
    Part.LineSegment(V(6.2, 77.8, 0), V(9, 81.8, 0)),  # 7
    Part.LineSegment(V(9, 81.8, 0), V(12.5, 81.8, 0)),  # 8
    Part.LineSegment(V(12.5, 81.8, 0), V(12.5, 87.5, 0)),  # 9
    Part.LineSegment(V(12.5, 87.5, 0), V(11, 87.5, 0)),  # 10
    Part.LineSegment(V(11, 87.5, 0), V(11, 90, 0)),  # 11
    Part.LineSegment(V(5, -90, 0), V(11, -90, 0)),  # 12
    Part.LineSegment(V(11, -90, 0), V(11, -87.5, 0)),  # 13
    Part.LineSegment(V(11, -87.5, 0), V(12.5, -87.5, 0)),  # 14
    Part.LineSegment(V(12.5, -87.5, 0), V(12.5, -81.8, 0)),  # 15
    Part.LineSegment(V(12.5, -81.8, 0), V(9, -81.8, 0)),  # 16
    Part.LineSegment(V(9, -81.8, 0), V(6.2, -77.8, 0)),  # 17
    Part.LineSegment(V(6.2, -77.8, 0), V(5, -77.8, 0)),  # 18
    Part.LineSegment(V(5, -77.8, 0), V(5, -81.8, 0)),  # 19
    Part.LineSegment(V(5, -81.8, 0), V(2.5, -81.8, 0)),  # 20
    Part.LineSegment(V(2.5, -81.8, 0), V(2.5, -87.5, 0)),  # 21
    Part.LineSegment(V(2.5, -87.5, 0), V(5, -87.5, 0)),  # 22
    Part.LineSegment(V(5, -87.5, 0), V(5, -90, 0)),  # 23
], False)
sketch4.addConstraint([
    Sketcher.Constraint("Coincident", 0, 2, 1, 1),
    Sketcher.Constraint("Coincident", 1, 2, 2, 1),
    Sketcher.Constraint("Coincident", 2, 2, 3, 1),
    Sketcher.Constraint("Coincident", 3, 2, 4, 1),
    Sketcher.Constraint("Coincident", 4, 2, 5, 1),
    Sketcher.Constraint("Coincident", 5, 2, 6, 1),
    Sketcher.Constraint("Coincident", 6, 2, 7, 1),
    Sketcher.Constraint("Coincident", 7, 2, 8, 1),
    Sketcher.Constraint("Coincident", 8, 2, 9, 1),
    Sketcher.Constraint("Coincident", 9, 2, 10, 1),
    Sketcher.Constraint("Coincident", 10, 2, 11, 1),
    Sketcher.Constraint("Coincident", 11, 2, 0, 1),
    Sketcher.Constraint("Coincident", 12, 2, 13, 1),
    Sketcher.Constraint("Coincident", 13, 2, 14, 1),
    Sketcher.Constraint("Coincident", 14, 2, 15, 1),
    Sketcher.Constraint("Coincident", 15, 2, 16, 1),
    Sketcher.Constraint("Coincident", 16, 2, 17, 1),
    Sketcher.Constraint("Coincident", 17, 2, 18, 1),
    Sketcher.Constraint("Coincident", 18, 2, 19, 1),
    Sketcher.Constraint("Coincident", 19, 2, 20, 1),
    Sketcher.Constraint("Coincident", 20, 2, 21, 1),
    Sketcher.Constraint("Coincident", 21, 2, 22, 1),
    Sketcher.Constraint("Coincident", 22, 2, 23, 1),
    Sketcher.Constraint("Coincident", 23, 2, 12, 1),
    Sketcher.Constraint("Horizontal", 0),
    Sketcher.Constraint("Vertical", 1),
    Sketcher.Constraint("Horizontal", 2),
    Sketcher.Constraint("Vertical", 3),
    Sketcher.Constraint("Horizontal", 4),
    Sketcher.Constraint("Vertical", 5),
    Sketcher.Constraint("Horizontal", 6),
    Sketcher.Constraint("Horizontal", 8),
    Sketcher.Constraint("Vertical", 9),
    Sketcher.Constraint("Horizontal", 10),
    Sketcher.Constraint("Vertical", 11),
    Sketcher.Constraint("Horizontal", 12),
    Sketcher.Constraint("Vertical", 13),
    Sketcher.Constraint("Horizontal", 14),
    Sketcher.Constraint("Vertical", 15),
    Sketcher.Constraint("Horizontal", 16),
    Sketcher.Constraint("Horizontal", 18),
    Sketcher.Constraint("Vertical", 19),
    Sketcher.Constraint("Horizontal", 20),
    Sketcher.Constraint("Vertical", 21),
    Sketcher.Constraint("Horizontal", 22),
    Sketcher.Constraint("Vertical", 23),
    Sketcher.Constraint("Symmetric", 11, 2, 12, 2, -1),
    Sketcher.Constraint("Symmetric", 9, 2, 14, 2, -1),
    Sketcher.Constraint("Symmetric", 7, 2, 16, 2, -1),
    Sketcher.Constraint("Symmetric", 6, 2, 17, 2, -1),
    Sketcher.Constraint("Symmetric", 4, 2, 19, 2, -1),
    Sketcher.Constraint("Symmetric", 2, 2, 21, 2, -1),
    Sketcher.Constraint("Horizontal", 4, 2, 7, 2),
    Sketcher.Constraint("Horizontal", 2, 2, 9, 2),
    Sketcher.Constraint("Vertical", 1, 2, 4, 2),
    Sketcher.Constraint("Vertical", 19, 2, 22, 2),
    Sketcher.Constraint("Equal", 22, 1),
    Sketcher.Constraint("DistanceX", 0, 2, 0, 1, Q("6 mm")),
    Sketcher.Constraint("DistanceY", 5, 2, 5, 1, Q("4 mm")),
    Sketcher.Constraint("DistanceX", 2, 2, 2, 1, Q("2.5 mm")),
    Sketcher.Constraint("DistanceX", 10, 2, 10, 1, Q("1.5 mm")),
    Sketcher.Constraint("DistanceY", 3, 2, 3, 1, Q("5.7 mm")),
    Sketcher.Constraint("DistanceX", -1, 1, 0, 2, Q("5 mm")),
    Sketcher.Constraint("DistanceY", -1, 1, 0, 2, Q("90 mm")),
    Sketcher.Constraint("DistanceX", 6, 2, 7, 2, Q("2.8 mm")),
    Sketcher.Constraint("DistanceX", 6, 1, 6, 2, Q("1.218689 mm")),
])
pocket3 = body.newObject("PartDesign::Pocket", "Pocket002")
pocket3.Profile = sketch4
pocket3.Type = "ThroughAll"
pocket3.Midplane = True

doc.recompute()
